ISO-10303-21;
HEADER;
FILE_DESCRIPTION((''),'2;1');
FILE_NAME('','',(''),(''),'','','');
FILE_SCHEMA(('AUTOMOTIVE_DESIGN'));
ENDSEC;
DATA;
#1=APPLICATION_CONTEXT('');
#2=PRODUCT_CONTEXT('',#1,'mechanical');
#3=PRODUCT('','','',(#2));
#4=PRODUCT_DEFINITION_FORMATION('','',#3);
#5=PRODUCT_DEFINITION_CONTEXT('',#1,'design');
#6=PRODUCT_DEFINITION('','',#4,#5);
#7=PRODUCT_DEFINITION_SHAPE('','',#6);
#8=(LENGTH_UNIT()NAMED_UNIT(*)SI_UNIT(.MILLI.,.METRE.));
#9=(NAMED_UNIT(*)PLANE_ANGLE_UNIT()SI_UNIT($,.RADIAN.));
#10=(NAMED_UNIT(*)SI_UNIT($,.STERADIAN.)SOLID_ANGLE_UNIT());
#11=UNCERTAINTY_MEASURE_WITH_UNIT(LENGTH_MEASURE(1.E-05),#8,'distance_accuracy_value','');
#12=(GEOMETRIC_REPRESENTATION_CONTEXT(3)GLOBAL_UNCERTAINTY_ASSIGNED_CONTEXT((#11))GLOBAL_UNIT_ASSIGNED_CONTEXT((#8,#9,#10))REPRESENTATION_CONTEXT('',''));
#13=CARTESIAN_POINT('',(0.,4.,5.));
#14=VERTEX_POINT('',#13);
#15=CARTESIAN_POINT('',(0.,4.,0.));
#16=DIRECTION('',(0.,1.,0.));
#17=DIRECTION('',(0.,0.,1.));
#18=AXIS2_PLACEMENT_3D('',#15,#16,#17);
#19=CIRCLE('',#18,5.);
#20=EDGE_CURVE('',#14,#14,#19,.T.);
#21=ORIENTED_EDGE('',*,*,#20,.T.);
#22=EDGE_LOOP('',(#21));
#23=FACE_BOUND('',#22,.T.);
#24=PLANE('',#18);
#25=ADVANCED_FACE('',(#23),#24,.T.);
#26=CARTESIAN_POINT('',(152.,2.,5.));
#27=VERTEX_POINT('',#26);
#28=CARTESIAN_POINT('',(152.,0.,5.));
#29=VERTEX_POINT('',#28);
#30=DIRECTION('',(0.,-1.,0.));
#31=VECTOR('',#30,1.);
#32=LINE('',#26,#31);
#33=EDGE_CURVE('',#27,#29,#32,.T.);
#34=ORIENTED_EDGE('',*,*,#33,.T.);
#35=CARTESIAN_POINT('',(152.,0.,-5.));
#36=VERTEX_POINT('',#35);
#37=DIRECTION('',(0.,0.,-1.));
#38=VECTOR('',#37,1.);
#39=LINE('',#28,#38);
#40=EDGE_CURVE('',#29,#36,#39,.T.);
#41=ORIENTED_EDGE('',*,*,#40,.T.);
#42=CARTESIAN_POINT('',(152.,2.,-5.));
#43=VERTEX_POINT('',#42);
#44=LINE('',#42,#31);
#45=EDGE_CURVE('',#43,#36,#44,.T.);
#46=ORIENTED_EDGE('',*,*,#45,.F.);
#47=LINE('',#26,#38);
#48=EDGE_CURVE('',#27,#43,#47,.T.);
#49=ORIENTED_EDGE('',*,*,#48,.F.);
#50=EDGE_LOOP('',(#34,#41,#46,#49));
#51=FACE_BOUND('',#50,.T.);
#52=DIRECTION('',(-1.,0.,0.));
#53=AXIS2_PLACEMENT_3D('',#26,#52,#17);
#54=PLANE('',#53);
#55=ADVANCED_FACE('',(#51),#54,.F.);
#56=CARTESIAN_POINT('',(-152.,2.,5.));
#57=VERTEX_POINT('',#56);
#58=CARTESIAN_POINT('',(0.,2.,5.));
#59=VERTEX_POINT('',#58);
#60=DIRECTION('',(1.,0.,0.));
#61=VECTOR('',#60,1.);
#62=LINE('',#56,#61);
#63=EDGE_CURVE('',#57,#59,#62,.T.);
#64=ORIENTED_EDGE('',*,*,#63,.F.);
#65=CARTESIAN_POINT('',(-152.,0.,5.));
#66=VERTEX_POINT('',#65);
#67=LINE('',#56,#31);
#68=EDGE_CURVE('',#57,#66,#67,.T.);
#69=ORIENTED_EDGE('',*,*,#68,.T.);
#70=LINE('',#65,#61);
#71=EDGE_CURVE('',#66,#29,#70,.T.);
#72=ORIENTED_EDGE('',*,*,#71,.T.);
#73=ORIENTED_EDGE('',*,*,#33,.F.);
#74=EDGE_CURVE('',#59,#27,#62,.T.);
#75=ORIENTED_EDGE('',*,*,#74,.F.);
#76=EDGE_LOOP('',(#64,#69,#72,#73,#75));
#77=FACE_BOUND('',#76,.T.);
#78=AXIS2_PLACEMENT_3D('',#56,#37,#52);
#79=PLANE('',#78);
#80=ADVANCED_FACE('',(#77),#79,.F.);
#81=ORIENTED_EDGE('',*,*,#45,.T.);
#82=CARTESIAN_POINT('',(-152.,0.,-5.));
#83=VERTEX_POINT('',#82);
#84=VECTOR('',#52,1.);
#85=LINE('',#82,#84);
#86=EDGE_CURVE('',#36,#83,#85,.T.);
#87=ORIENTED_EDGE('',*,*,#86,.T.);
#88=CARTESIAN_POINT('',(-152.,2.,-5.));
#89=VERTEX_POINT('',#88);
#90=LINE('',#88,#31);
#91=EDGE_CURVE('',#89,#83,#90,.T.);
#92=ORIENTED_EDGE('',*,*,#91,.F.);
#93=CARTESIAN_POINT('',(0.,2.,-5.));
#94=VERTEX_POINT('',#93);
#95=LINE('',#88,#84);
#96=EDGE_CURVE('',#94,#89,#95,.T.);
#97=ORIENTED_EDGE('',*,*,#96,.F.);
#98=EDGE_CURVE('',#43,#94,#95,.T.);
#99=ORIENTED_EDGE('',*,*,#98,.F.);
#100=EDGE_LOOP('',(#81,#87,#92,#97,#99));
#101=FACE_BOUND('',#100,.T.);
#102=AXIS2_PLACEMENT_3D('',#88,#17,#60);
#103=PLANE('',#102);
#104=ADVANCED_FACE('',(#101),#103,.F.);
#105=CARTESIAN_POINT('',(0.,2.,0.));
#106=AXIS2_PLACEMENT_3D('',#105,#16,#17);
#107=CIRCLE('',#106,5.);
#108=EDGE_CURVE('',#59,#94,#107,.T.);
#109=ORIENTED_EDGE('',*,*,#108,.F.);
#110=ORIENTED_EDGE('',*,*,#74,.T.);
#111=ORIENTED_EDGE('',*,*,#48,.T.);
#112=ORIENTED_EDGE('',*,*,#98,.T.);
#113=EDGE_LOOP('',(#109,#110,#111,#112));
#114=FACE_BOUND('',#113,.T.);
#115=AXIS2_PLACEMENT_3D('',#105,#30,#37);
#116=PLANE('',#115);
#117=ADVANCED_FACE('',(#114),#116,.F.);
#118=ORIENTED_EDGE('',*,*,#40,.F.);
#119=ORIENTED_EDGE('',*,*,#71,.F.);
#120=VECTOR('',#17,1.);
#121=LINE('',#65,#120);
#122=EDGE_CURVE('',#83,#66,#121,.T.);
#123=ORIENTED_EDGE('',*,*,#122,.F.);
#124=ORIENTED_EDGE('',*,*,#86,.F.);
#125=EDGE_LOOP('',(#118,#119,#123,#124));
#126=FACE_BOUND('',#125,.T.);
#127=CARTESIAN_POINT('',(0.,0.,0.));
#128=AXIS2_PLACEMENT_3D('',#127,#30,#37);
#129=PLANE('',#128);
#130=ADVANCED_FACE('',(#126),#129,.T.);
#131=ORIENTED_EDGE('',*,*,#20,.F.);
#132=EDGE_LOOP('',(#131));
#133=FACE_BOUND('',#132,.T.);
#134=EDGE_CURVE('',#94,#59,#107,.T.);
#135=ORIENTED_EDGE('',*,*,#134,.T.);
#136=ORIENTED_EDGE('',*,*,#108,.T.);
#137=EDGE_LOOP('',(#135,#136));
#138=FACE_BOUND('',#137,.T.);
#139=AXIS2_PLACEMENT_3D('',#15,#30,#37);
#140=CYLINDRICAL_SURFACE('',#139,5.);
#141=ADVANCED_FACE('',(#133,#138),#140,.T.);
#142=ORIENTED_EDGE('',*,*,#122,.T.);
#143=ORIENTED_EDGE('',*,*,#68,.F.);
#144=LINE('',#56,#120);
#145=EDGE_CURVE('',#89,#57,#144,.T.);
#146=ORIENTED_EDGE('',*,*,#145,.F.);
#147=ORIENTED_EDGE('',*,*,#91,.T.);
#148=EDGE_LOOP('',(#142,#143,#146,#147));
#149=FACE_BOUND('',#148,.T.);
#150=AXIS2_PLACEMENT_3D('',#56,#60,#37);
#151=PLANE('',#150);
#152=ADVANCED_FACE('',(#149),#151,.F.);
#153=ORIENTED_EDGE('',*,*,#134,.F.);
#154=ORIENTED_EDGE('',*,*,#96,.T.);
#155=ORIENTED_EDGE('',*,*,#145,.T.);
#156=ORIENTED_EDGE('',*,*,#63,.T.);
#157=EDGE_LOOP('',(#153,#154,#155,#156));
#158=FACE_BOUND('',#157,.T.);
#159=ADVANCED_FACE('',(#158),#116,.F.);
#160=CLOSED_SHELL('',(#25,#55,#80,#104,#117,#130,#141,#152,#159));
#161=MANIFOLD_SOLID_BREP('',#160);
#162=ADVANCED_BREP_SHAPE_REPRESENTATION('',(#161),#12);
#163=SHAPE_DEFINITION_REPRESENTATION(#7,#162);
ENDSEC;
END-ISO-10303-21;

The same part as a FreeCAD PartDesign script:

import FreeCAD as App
import Part
import Sketcher

doc = App.newDocument("Part")
body = doc.addObject("PartDesign::Body", "Body")

# Sketch on XZ plane
sketch1 = body.newObject("Sketcher::SketchObject", "Sketch")
sketch1.AttachmentSupport = (doc.getObject("XZ_Plane"), [""])
sketch1.MapMode = "FlatFace"
sketch1.addGeometry([
    Part.LineSegment(App.Vector(-152, -5, 0), App.Vector(-152, 5, 0)),
    Part.LineSegment(App.Vector(-152, 5, 0), App.Vector(152, 5, 0)),
    Part.LineSegment(App.Vector(152, 5, 0), App.Vector(152, -5, 0)),
    Part.LineSegment(App.Vector(152, -5, 0), App.Vector(-152, -5, 0)),
], False)
sketch1.addConstraint([
    Sketcher.Constraint("Coincident", 0, 2, 1, 1),
    Sketcher.Constraint("Coincident", 1, 2, 2, 1),
    Sketcher.Constraint("Coincident", 2, 2, 3, 1),
    Sketcher.Constraint("Coincident", 3, 2, 0, 1),
    Sketcher.Constraint("Vertical", 0),
    Sketcher.Constraint("Horizontal", 1),
    Sketcher.Constraint("Vertical", 2),
    Sketcher.Constraint("Horizontal", 3),
    Sketcher.Constraint("Symmetric", 0, 2, 2, 2, -1, 1),
    Sketcher.Constraint("DistanceX", 1, 1, 1, 2, 304.0),
    Sketcher.Constraint("DistanceY", 0, 1, 0, 2, 10.0),
])
pad1 = body.newObject("PartDesign::Pad", "Pad")
pad1.Profile = sketch1
pad1.Length = 2
pad1.Reversed = True

# Sketch on XZ plane
sketch2 = body.newObject("Sketcher::SketchObject", "Sketch001")
sketch2.AttachmentSupport = (doc.getObject("XZ_Plane"), [""])
sketch2.MapMode = "FlatFace"
sketch2.AttachmentOffset = App.Placement(App.Vector(0, 0, -2), App.Rotation())
sketch2.addGeometry(Part.Circle(App.Vector(0, 0, 0), App.Vector(0, 0, 1), 5), False)
sketch2.addConstraint([
    Sketcher.Constraint("Coincident", 0, 3, -1, 1),
    Sketcher.Constraint("Diameter", 0, 10.0),
])
pad2 = body.newObject("PartDesign::Pad", "Pad001")
pad2.Profile = sketch2
pad2.Length = 2
pad2.Reversed = True

doc.recompute()
